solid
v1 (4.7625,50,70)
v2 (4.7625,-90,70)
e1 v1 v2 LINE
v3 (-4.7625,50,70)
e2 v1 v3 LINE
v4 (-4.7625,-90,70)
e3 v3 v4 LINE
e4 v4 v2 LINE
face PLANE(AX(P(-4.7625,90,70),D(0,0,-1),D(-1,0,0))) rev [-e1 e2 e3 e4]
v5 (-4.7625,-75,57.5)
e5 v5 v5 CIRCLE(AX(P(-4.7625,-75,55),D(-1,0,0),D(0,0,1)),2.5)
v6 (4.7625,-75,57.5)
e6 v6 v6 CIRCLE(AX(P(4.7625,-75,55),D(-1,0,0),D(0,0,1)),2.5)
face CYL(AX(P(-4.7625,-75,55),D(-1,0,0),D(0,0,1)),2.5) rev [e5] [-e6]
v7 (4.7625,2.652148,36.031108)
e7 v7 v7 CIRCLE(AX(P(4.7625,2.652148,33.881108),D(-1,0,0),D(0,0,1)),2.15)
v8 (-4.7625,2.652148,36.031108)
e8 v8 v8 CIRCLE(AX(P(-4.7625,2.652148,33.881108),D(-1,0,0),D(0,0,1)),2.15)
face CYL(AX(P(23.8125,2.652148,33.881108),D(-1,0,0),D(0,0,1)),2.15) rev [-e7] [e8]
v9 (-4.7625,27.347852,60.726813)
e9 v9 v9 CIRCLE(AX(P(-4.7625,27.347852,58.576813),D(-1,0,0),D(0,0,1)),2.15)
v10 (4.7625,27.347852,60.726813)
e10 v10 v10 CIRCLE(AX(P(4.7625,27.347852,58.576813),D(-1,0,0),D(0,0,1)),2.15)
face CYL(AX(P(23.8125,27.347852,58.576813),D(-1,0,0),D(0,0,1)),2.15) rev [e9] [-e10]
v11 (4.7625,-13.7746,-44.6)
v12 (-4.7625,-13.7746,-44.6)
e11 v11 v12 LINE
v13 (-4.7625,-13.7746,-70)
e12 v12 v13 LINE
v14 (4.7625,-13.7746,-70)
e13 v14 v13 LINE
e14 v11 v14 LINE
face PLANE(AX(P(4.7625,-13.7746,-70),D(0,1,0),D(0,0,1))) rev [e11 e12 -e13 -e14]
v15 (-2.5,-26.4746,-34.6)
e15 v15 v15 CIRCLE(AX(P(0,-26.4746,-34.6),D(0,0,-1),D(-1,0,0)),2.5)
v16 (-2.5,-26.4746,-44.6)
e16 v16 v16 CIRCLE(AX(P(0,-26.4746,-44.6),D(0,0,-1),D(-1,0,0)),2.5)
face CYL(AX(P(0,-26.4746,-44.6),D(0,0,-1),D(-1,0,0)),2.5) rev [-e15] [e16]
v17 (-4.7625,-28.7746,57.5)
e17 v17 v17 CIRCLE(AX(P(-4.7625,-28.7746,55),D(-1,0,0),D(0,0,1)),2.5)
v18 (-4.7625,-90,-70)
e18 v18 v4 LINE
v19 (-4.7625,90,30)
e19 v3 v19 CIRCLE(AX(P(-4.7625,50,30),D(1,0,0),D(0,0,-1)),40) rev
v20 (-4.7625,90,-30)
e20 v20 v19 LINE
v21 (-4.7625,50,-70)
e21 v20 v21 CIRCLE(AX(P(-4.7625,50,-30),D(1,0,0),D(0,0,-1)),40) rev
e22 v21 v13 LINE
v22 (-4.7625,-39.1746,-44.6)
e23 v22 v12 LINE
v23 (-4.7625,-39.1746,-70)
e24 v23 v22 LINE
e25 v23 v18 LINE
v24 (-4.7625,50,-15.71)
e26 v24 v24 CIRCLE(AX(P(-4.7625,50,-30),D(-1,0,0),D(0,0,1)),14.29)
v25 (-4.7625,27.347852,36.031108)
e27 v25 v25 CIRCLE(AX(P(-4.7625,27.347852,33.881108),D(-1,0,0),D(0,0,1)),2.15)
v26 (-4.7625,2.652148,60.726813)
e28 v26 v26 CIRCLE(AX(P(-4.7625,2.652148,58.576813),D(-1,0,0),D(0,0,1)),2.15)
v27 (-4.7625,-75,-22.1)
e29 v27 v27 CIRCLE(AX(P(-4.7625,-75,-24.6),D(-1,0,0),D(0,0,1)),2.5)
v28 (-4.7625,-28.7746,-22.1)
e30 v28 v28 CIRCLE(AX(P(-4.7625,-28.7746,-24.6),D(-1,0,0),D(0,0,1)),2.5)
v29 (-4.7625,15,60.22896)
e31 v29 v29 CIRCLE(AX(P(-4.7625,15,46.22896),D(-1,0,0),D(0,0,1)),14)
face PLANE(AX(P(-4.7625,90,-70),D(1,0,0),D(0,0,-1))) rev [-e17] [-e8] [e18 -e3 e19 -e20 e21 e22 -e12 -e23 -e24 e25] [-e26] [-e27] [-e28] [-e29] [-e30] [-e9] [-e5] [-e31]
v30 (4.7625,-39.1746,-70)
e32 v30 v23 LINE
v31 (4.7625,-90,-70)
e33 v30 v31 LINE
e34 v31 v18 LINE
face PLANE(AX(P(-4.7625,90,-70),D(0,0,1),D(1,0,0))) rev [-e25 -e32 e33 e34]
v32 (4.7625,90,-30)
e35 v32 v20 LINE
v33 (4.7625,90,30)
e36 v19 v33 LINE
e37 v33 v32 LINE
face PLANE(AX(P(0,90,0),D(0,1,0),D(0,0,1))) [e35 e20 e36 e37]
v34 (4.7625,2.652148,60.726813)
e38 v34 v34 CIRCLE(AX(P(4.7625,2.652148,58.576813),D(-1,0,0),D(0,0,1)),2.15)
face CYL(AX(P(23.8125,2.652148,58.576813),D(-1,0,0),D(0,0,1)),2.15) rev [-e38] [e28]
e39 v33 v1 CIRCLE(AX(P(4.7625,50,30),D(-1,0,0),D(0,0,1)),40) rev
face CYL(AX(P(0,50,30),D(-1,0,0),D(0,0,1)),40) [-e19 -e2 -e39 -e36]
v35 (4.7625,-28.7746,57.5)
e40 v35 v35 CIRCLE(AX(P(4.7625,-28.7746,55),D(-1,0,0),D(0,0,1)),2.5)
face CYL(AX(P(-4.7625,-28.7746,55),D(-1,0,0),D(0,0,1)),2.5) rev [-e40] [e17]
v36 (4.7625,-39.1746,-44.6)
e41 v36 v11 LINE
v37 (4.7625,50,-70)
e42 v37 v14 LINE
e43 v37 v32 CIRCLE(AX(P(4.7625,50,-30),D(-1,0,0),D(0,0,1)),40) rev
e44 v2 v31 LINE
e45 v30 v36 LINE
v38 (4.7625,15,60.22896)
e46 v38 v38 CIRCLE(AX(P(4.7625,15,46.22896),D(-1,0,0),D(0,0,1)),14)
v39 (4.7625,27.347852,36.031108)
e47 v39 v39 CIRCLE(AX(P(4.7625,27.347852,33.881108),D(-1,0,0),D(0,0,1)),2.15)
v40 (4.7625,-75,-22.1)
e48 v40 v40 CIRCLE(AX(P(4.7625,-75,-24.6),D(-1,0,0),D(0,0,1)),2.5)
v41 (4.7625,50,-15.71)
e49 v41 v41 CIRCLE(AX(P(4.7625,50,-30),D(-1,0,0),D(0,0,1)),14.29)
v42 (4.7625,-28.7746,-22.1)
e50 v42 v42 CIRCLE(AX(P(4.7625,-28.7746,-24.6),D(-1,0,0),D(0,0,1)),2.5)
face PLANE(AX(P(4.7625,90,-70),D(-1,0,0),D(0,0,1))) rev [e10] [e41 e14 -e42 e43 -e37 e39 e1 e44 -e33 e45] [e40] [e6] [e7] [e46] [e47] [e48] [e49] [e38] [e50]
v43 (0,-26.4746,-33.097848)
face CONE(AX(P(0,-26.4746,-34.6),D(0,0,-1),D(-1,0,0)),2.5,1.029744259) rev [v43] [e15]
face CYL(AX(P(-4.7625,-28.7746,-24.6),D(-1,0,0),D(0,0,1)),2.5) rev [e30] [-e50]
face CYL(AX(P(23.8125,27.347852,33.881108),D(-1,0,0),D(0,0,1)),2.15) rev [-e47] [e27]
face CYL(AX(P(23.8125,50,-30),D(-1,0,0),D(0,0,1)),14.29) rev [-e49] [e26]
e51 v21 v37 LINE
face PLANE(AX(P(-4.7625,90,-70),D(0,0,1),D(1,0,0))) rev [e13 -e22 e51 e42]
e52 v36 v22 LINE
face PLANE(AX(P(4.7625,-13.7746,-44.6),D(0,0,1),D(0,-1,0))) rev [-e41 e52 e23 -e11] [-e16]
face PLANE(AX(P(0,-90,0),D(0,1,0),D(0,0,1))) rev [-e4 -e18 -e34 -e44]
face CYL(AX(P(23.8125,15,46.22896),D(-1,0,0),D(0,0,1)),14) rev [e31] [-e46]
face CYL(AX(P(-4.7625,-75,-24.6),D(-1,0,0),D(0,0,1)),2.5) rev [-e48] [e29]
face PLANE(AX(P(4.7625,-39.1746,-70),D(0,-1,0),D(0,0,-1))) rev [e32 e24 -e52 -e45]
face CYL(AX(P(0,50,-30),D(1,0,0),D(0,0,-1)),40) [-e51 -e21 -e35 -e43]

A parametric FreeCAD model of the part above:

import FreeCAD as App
import Part
import Sketcher
from FreeCAD import Vector
Q = App.Units.Quantity


def edges_at(feature, points):
    """Names of the edges that pass closest to the given points."""
    edges = feature.Shape.Edges
    near = lambda p: min(range(len(edges)), key=lambda i: edges[i].distToShape(Part.Vertex(*p))[0])
    return sorted({f"Edge{near(p) + 1}" for p in points})

doc = App.newDocument("Part")
params = doc.addObject("Spreadsheet::Sheet", "Params")
for row, (alias, value) in enumerate([
    ("sketch1_height", "140 mm"),
    ("pad1_length", "180 mm"),
    ("sketch2_diameter", "28 mm"),
    ("sketch2_diameter2", "4.3 mm"),
    ("sketch2_diameter3", "28.58 mm"),
    ("pocket1_length", "28.575 mm"),
    ("sketch3_width", "25.4 mm"),
    ("sketch4_diameter", "5 mm"),
    ("hole_diameter", "5 mm"),
    ("hole_depth", "10 mm"),
    ("sketch5_diameter", "5 mm"),
    ("hole2_diameter", "5 mm"),
    ("fillet_radius", "40 mm"),
], start=1):
    params.set(f"A{row}", alias)
    params.set(f"B{row}", "=" + value)
    params.setAlias(f"B{row}", alias)

body = doc.addObject("PartDesign::Body", "Body")

sketch1 = body.newObject("Sketcher::SketchObject", "Sketch")
sketch1.AttachmentSupport = (doc.getObject("XZ_Plane"), [""])
sketch1.MapMode = "FlatFace"
sketch1.addGeometry([
    Part.LineSegment(Vector(-5, -70, 0), Vector(-5, 70, 0)),
    Part.LineSegment(Vector(-5, 70, 0), Vector(5, 70, 0)),
    Part.LineSegment(Vector(5, 70, 0), Vector(5, -70, 0)),
    Part.LineSegment(Vector(5, -70, 0), Vector(-5, -70, 0)),
], False)
sketch1.addConstraint([
    Sketcher.Constraint("Coincident", 0, 2, 1, 1),
    Sketcher.Constraint("Coincident", 1, 2, 2, 1),
    Sketcher.Constraint("Coincident", 2, 2, 3, 1),
    Sketcher.Constraint("Coincident", 3, 2, 0, 1),
    Sketcher.Constraint("Vertical", 0),
    Sketcher.Constraint("Horizontal", 1),
    Sketcher.Constraint("Vertical", 2),
    Sketcher.Constraint("Horizontal", 3),
    Sketcher.Constraint("Symmetric", 0, 2, 2, 2, -1, 1),
    Sketcher.Constraint("DistanceY", 0, 1, 0, 2, Q("140 mm")),
    Sketcher.Constraint("DistanceX", 1, 1, 1, 2, Q("9.525 mm")),
])
sketch1.setExpression("Constraints[9]", "Params.sketch1_height")
pad1 = body.newObject("PartDesign::Pad", "Pad")
pad1.Profile = sketch1
pad1.setExpression("Length", "Params.pad1_length")
pad1.Midplane = True

sketch2 = body.newObject("Sketcher::SketchObject", "Sketch001")
sketch2.AttachmentSupport = (doc.getObject("YZ_Plane"), [""])
sketch2.MapMode = "FlatFace"
sketch2.AttachmentOffset = App.Placement(Vector(0, 0, -4.7625), App.Rotation())
sketch2.addGeometry([
    Part.Circle(Vector(50, -30, 0), Vector(0, 0, 1), 14.3),
    Part.Circle(Vector(27.3, 33.9, 0), Vector(0, 0, 1), 2.1),
    Part.Circle(Vector(27.3, 58.6, 0), Vector(0, 0, 1), 2.1),
    Part.Circle(Vector(2.7, 33.9, 0), Vector(0, 0, 1), 2.1),
    Part.Circle(Vector(2.7, 58.6, 0), Vector(0, 0, 1), 2.1),
    Part.Circle(Vector(15, 46.2, 0), Vector(0, 0, 1), 14),
], False)
sketch2.addConstraint([
    Sketcher.Constraint("Equal", 1, 2),
    Sketcher.Constraint("Equal", 2, 3),
    Sketcher.Constraint("Equal", 3, 4),
    Sketcher.Constraint("Horizontal", 1, 3, 3, 3),
    Sketcher.Constraint("Horizontal", 2, 3, 4, 3),
    Sketcher.Constraint("Vertical", 1, 3, 2, 3),
    Sketcher.Constraint("Vertical", 3, 3, 4, 3),
    Sketcher.Constraint("Diameter", 5, Q("28 mm")),
    Sketcher.Constraint("Diameter", 1, Q("4.3 mm")),
    Sketcher.Constraint("Diameter", 0, Q("28.58 mm")),
    Sketcher.Constraint("DistanceX", -1, 1, 0, 3, Q("50 mm")),
    Sketcher.Constraint("DistanceY", 0, 3, -1, 1, Q("30 mm")),
    Sketcher.Constraint("DistanceX", -1, 1, 5, 3, Q("15 mm")),
    Sketcher.Constraint("DistanceY", -1, 1, 1, 3, Q("33.881108 mm")),
    Sketcher.Constraint("DistanceY", -1, 1, 5, 3, Q("46.22896 mm")),
    Sketcher.Constraint("DistanceX", -1, 1, 1, 3, Q("27.347852 mm")),
    Sketcher.Constraint("DistanceY", -1, 1, 2, 3, Q("58.576813 mm")),
    Sketcher.Constraint("DistanceX", -1, 1, 3, 3, Q("2.652148 mm")),
])
sketch2.setExpression("Constraints[7]", "Params.sketch2_diameter")
sketch2.setExpression("Constraints[8]", "Params.sketch2_diameter2")
sketch2.setExpression("Constraints[9]", "Params.sketch2_diameter3")
pocket1 = body.newObject("PartDesign::Pocket", "Pocket")
pocket1.Profile = sketch2
pocket1.setExpression("Length", "Params.pocket1_length")
pocket1.Reversed = True

sketch3 = body.newObject("Sketcher::SketchObject", "Sketch002")
sketch3.AttachmentSupport = (doc.getObject("YZ_Plane"), [""])
sketch3.MapMode = "FlatFace"
sketch3.AttachmentOffset = App.Placement(Vector(0, 0, -4.7625), App.Rotation())
sketch3.addGeometry([
    Part.LineSegment(Vector(-14, -70, 0), Vector(-39, -70, 0)),
    Part.LineSegment(Vector(-39, -70, 0), Vector(-39, -45, 0)),
    Part.LineSegment(Vector(-39, -45, 0), Vector(-14, -45, 0)),
    Part.LineSegment(Vector(-14, -45, 0), Vector(-14, -70, 0)),
], False)
sketch3.addConstraint([
    Sketcher.Constraint("Coincident", 0, 2, 1, 1),
    Sketcher.Constraint("Coincident", 1, 2, 2, 1),
    Sketcher.Constraint("Coincident", 2, 2, 3, 1),
    Sketcher.Constraint("Coincident", 3, 2, 0, 1),
    Sketcher.Constraint("Horizontal", 0),
    Sketcher.Constraint("Vertical", 1),
    Sketcher.Constraint("Horizontal", 2),
    Sketcher.Constraint("Vertical", 3),
    Sketcher.Constraint("Equal", 2, 1),
    Sketcher.Constraint("DistanceX", 0, 2, 0, 1, Q("25.4 mm")),
    Sketcher.Constraint("DistanceY", 0, 2, -1, 1, Q("70 mm")),
    Sketcher.Constraint("DistanceX", 0, 2, -1, 1, Q("39.1746 mm")),
])
sketch3.setExpression("Constraints[9]", "Params.sketch3_width")
pocket2 = body.newObject("PartDesign::Pocket", "Pocket001")
pocket2.Profile = sketch3
pocket2.Type = "ThroughAll"
pocket2.Reversed = True

sketch4 = body.newObject("Sketcher::SketchObject", "Sketch003")
sketch4.AttachmentSupport = (doc.getObject("XY_Plane"), [""])
sketch4.MapMode = "FlatFace"
sketch4.AttachmentOffset = App.Placement(Vector(0, 0, -44.6), App.Rotation())
sketch4.addGeometry(Part.Circle(Vector(0, -26.5, 0), Vector(0, 0, 1), 2.5), False)
sketch4.addConstraint([
    Sketcher.Constraint("PointOnObject", 0, 3, -2),
    Sketcher.Constraint("Diameter", 0, Q("5 mm")),
    Sketcher.Constraint("DistanceY", 0, 3, -1, 1, Q("26.4746 mm")),
])
sketch4.setExpression("Constraints[1]", "Params.sketch4_diameter")
doc.recompute()
hole = body.newObject("PartDesign::Hole", "Hole")
hole.Profile = sketch4
hole.ThreadType = "None"
hole.setExpression("Diameter", "Params.hole_diameter")
hole.DepthType = "Dimension"
hole.setExpression("Depth", "Params.hole_depth")
hole.DrillPoint = "Angled"
hole.DrillPointAngle = 118
hole.Reversed = True

sketch5 = body.newObject("Sketcher::SketchObject", "Sketch004")
sketch5.AttachmentSupport = (doc.getObject("YZ_Plane"), [""])
sketch5.MapMode = "FlatFace"
sketch5.AttachmentOffset = App.Placement(Vector(0, 0, -4.7625), App.Rotation())
sketch5.addGeometry([
    Part.Circle(Vector(-28.8, -24.6, 0), Vector(0, 0, 1), 2.5),
    Part.Circle(Vector(-28.8, 55, 0), Vector(0, 0, 1), 2.5),
    Part.Circle(Vector(-75, -24.6, 0), Vector(0, 0, 1), 2.5),
    Part.Circle(Vector(-75, 55, 0), Vector(0, 0, 1), 2.5),
], False)
sketch5.addConstraint([
    Sketcher.Constraint("Equal", 0, 1),
    Sketcher.Constraint("Equal", 1, 2),
    Sketcher.Constraint("Equal", 2, 3),
    Sketcher.Constraint("Horizontal", 0, 3, 2, 3),
    Sketcher.Constraint("Horizontal", 1, 3, 3, 3),
    Sketcher.Constraint("Vertical", 0, 3, 1, 3),
    Sketcher.Constraint("Vertical", 2, 3, 3, 3),
    Sketcher.Constraint("Diameter", 0, Q("5 mm")),
    Sketcher.Constraint("DistanceY", -1, 1, 1, 3, Q("55 mm")),
    Sketcher.Constraint("DistanceX", 2, 3, -1, 1, Q("75 mm")),
    Sketcher.Constraint("DistanceY", 0, 3, -1, 1, Q("24.6 mm")),
    Sketcher.Constraint("DistanceX", 0, 3, -1, 1, Q("28.7746 mm")),
])
sketch5.setExpression("Constraints[7]", "Params.sketch5_diameter")
doc.recompute()
hole2 = body.newObject("PartDesign::Hole", "Hole001")
hole2.Profile = sketch5
hole2.ThreadType = "None"
hole2.setExpression("Diameter", "Params.hole2_diameter")
hole2.DepthType = "ThroughAll"
hole2.Reversed = True
doc.recompute()

fillet = body.newObject("PartDesign::Fillet", "Fillet")
fillet.Base = (hole2, edges_at(hole2, [(0, 90, 70), (0, 90, -70)]))
fillet.setExpression("Radius", "Params.fillet_radius")

doc.recompute()
